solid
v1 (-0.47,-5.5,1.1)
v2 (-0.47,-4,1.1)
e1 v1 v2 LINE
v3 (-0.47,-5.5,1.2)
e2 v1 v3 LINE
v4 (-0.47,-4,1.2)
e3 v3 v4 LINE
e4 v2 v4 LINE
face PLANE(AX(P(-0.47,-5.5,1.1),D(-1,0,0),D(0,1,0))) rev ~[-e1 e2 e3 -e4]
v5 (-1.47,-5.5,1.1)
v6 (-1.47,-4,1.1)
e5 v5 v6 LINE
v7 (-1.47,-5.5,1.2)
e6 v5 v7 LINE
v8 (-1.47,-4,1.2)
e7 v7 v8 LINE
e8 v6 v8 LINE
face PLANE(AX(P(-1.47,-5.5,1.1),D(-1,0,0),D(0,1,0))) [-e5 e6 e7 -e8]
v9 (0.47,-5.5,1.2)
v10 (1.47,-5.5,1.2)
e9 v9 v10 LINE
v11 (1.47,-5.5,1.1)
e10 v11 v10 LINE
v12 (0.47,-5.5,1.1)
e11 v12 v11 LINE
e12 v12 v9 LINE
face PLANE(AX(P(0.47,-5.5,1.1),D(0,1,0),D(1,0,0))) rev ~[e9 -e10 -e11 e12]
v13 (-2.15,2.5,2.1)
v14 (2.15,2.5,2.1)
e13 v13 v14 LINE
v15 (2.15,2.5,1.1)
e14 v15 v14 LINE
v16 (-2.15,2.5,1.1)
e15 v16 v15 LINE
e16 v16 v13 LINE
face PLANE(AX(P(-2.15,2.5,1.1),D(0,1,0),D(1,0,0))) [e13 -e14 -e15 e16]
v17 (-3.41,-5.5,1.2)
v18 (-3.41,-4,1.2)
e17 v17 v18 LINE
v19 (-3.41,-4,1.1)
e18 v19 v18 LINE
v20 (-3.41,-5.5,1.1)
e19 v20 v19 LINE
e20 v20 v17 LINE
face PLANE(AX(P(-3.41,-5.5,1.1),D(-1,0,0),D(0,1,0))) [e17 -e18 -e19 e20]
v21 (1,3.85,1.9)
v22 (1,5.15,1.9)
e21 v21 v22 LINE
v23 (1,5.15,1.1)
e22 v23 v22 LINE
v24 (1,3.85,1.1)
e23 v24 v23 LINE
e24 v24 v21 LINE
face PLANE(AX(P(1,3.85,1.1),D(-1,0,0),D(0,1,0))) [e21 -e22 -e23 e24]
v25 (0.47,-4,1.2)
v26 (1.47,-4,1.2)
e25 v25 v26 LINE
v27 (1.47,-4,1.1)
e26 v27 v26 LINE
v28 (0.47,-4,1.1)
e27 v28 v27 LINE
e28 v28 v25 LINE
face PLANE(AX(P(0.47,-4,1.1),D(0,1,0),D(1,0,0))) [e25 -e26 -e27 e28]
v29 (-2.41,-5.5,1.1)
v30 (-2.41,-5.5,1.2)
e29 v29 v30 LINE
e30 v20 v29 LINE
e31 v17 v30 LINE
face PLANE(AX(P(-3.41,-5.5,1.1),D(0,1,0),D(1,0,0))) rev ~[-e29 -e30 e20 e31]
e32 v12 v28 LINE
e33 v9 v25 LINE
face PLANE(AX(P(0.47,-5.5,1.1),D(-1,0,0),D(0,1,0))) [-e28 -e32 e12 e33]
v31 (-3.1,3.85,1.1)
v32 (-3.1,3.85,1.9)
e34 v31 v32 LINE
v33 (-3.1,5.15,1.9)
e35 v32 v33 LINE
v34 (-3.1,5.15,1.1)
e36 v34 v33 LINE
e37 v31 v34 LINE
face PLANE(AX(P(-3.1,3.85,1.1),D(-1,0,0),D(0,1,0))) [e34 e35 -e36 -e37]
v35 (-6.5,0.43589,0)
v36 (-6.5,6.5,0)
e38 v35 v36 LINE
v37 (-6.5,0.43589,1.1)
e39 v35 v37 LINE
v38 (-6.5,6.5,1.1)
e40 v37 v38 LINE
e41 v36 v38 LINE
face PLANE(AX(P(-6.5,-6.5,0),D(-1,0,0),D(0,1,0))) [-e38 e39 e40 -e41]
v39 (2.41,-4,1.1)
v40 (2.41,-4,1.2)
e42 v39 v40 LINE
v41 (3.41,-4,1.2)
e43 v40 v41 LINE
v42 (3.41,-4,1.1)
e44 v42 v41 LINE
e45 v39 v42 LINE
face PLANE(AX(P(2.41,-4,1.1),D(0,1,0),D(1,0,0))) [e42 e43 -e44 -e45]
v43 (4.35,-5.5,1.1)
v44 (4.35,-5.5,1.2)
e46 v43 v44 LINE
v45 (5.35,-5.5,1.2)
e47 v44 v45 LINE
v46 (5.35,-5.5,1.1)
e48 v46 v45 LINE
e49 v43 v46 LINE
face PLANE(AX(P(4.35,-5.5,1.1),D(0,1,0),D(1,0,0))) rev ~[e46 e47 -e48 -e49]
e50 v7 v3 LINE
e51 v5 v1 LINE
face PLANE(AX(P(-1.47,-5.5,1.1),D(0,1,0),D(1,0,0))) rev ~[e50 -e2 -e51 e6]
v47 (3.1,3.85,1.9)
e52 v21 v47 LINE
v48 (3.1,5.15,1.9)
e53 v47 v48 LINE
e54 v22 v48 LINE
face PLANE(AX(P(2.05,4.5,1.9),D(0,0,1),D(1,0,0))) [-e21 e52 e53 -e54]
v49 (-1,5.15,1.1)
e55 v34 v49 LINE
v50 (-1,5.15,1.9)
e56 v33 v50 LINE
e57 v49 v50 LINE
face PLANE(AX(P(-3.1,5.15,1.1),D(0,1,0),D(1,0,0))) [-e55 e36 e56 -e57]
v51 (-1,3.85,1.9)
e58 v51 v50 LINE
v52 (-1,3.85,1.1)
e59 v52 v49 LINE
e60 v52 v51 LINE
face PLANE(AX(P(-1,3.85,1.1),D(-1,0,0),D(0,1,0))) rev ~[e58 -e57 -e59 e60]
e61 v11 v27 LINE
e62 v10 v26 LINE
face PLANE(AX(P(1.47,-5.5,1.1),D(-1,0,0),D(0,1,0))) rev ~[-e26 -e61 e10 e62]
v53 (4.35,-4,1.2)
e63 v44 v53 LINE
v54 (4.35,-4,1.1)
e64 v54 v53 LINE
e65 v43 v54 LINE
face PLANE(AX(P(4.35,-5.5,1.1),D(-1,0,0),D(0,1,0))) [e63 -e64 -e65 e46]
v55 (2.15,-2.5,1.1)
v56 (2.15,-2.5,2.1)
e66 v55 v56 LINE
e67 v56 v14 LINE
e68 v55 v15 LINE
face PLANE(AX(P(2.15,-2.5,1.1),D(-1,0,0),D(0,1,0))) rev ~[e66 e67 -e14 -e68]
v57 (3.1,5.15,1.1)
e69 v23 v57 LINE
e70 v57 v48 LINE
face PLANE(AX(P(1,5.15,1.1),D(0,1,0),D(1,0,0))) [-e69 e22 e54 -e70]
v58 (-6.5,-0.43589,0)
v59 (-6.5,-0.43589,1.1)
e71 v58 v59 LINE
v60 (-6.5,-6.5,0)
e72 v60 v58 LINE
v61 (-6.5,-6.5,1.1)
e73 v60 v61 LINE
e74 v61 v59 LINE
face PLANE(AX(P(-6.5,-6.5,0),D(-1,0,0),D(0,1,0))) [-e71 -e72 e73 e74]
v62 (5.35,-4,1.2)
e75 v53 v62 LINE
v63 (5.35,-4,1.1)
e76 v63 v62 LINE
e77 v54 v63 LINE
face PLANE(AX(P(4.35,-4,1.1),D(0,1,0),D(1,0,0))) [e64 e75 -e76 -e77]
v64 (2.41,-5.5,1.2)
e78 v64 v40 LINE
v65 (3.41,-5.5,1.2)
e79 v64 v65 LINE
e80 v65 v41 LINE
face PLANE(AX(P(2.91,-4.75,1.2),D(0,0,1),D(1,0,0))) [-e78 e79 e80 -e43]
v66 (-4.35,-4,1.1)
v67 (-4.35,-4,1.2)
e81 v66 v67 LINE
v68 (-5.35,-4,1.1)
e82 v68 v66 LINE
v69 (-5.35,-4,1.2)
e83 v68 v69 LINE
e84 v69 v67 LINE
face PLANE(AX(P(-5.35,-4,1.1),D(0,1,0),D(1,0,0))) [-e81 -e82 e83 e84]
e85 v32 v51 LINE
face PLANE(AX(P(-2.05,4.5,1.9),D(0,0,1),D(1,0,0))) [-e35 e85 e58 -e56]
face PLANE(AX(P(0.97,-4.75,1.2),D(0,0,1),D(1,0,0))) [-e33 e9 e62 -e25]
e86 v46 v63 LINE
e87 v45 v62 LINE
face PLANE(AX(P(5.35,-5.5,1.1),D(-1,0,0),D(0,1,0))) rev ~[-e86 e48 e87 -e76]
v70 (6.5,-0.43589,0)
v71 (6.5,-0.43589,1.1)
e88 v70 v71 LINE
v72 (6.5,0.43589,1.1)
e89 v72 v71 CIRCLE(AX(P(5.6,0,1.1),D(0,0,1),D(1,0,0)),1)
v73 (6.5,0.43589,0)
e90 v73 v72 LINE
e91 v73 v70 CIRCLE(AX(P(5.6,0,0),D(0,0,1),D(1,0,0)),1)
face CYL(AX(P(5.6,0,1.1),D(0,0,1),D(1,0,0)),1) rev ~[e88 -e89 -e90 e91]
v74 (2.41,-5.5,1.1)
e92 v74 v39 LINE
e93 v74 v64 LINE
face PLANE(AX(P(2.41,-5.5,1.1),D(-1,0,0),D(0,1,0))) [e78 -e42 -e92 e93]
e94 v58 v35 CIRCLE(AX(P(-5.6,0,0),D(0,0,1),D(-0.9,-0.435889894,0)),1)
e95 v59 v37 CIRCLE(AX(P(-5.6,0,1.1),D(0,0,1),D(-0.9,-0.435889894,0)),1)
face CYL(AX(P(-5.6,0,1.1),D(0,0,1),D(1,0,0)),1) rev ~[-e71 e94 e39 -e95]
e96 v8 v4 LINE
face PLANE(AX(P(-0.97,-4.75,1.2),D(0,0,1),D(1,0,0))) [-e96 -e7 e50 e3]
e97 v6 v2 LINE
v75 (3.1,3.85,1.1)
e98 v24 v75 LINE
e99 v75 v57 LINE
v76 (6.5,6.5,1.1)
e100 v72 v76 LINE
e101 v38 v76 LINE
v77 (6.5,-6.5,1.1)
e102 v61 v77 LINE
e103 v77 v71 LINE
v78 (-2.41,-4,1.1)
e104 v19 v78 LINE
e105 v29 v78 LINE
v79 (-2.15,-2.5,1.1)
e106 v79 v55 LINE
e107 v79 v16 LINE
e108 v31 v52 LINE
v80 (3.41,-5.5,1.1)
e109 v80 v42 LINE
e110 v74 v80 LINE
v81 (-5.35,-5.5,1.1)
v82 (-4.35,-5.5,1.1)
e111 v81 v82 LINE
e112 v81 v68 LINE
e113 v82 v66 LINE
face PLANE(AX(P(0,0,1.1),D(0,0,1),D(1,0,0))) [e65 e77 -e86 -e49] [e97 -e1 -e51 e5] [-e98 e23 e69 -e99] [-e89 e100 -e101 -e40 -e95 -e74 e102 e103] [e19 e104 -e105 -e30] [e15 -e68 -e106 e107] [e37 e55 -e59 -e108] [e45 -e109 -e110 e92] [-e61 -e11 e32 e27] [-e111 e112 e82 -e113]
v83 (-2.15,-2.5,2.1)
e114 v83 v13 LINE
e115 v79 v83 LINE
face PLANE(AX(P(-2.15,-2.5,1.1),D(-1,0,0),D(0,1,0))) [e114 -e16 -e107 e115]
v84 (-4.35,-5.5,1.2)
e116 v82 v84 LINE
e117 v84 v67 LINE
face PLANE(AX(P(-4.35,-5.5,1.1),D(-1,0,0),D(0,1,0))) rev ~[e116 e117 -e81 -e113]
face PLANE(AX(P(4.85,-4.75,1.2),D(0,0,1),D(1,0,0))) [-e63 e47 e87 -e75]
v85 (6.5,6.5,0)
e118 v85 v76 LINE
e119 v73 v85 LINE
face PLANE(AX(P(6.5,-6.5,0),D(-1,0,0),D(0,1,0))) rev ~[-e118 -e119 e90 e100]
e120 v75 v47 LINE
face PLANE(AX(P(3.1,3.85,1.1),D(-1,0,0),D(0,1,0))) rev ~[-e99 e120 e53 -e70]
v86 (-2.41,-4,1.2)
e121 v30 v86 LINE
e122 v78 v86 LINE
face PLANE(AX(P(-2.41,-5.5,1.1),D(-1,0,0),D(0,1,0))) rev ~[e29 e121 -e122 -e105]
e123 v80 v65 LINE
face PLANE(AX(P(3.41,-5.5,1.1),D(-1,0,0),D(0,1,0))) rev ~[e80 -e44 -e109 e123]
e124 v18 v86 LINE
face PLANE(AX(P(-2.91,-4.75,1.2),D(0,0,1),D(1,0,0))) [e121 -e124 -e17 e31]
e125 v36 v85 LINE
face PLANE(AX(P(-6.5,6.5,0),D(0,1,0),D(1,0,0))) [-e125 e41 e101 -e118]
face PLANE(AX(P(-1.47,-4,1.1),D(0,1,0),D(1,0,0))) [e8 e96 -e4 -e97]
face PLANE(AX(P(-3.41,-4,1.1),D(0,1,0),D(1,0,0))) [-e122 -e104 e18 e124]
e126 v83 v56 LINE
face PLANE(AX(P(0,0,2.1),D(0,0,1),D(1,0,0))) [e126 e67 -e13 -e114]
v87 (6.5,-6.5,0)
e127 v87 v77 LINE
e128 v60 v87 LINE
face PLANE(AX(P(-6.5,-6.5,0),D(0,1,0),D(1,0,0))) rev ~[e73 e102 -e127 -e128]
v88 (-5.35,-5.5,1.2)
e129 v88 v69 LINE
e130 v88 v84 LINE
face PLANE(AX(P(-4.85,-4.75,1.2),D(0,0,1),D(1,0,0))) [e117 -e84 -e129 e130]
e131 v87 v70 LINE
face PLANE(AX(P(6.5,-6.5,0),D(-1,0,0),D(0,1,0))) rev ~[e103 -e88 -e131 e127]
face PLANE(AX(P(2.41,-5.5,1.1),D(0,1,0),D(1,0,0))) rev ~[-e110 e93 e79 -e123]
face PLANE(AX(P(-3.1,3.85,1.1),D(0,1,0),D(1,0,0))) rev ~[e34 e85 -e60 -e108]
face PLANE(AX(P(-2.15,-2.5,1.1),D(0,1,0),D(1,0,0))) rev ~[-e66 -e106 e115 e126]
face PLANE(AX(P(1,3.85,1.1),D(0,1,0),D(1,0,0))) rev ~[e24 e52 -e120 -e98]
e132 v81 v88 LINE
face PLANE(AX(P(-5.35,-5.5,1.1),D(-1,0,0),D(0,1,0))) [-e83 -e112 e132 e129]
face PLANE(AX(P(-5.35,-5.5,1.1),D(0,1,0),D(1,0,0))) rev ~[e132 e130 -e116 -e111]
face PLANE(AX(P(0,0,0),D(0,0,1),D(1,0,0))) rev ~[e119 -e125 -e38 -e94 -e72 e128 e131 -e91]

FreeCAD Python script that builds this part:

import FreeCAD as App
import Part
import Sketcher
Q = App.Units.Quantity

doc = App.newDocument("Part")
body = doc.addObject("PartDesign::Body", "Body")

sketch1 = body.newObject("Sketcher::SketchObject", "Sketch")
sketch1.AttachmentSupport = (doc.getObject("XY_Plane"), [""])
sketch1.MapMode = "FlatFace"
sketch1.addGeometry([
    Part.LineSegment(App.Vector(-6.5, 6.5, 0), App.Vector(-6.5, -6.5, 0)),
    Part.LineSegment(App.Vector(-6.5, -6.5, 0), App.Vector(6.5, -6.5, 0)),
    Part.LineSegment(App.Vector(6.5, -6.5, 0), App.Vector(6.5, 6.5, 0)),
    Part.LineSegment(App.Vector(6.5, 6.5, 0), App.Vector(-6.5, 6.5, 0)),
], False)
sketch1.addConstraint([
    Sketcher.Constraint("Coincident", 0, 2, 1, 1),
    Sketcher.Constraint("Coincident", 1, 2, 2, 1),
    Sketcher.Constraint("Coincident", 2, 2, 3, 1),
    Sketcher.Constraint("Coincident", 3, 2, 0, 1),
    Sketcher.Constraint("Vertical", 0),
    Sketcher.Constraint("Horizontal", 1),
    Sketcher.Constraint("Vertical", 2),
    Sketcher.Constraint("Horizontal", 3),
    Sketcher.Constraint("Symmetric", 0, 2, 2, 2, -1, 1),
    Sketcher.Constraint("Equal", 3, 0),
    Sketcher.Constraint("DistanceX", 1, 1, 1, 2, Q("13 mm")),
])
pad1 = body.newObject("PartDesign::Pad", "Pad")
pad1.Profile = sketch1
pad1.Length = 1.1

sketch2 = body.newObject("Sketcher::SketchObject", "Sketch001")
sketch2.AttachmentSupport = (doc.getObject("XY_Plane"), [""])
sketch2.MapMode = "FlatFace"
sketch2.AttachmentOffset = App.Placement(App.Vector(0, 0, 1.1), App.Rotation())
sketch2.addGeometry([
    Part.LineSegment(App.Vector(-2.15, 2.5, 0), App.Vector(-2.15, -2.5, 0)),
    Part.LineSegment(App.Vector(-2.15, -2.5, 0), App.Vector(2.15, -2.5, 0)),
    Part.LineSegment(App.Vector(2.15, -2.5, 0), App.Vector(2.15, 2.5, 0)),
    Part.LineSegment(App.Vector(2.15, 2.5, 0), App.Vector(-2.15, 2.5, 0)),
], False)
sketch2.addConstraint([
    Sketcher.Constraint("Coincident", 0, 2, 1, 1),
    Sketcher.Constraint("Coincident", 1, 2, 2, 1),
    Sketcher.Constraint("Coincident", 2, 2, 3, 1),
    Sketcher.Constraint("Coincident", 3, 2, 0, 1),
    Sketcher.Constraint("Vertical", 0),
    Sketcher.Constraint("Horizontal", 1),
    Sketcher.Constraint("Vertical", 2),
    Sketcher.Constraint("Horizontal", 3),
    Sketcher.Constraint("Symmetric", 0, 2, 2, 2, -1, 1),
    Sketcher.Constraint("DistanceY", 0, 2, 0, 1, Q("5 mm")),
    Sketcher.Constraint("DistanceX", 1, 1, 1, 2, Q("4.3 mm")),
])
pad2 = body.newObject("PartDesign::Pad", "Pad001")
pad2.Profile = sketch2
pad2.Length = 1

sketch3 = body.newObject("Sketcher::SketchObject", "Sketch002")
sketch3.AttachmentSupport = (doc.getObject("XY_Plane"), [""])
sketch3.MapMode = "FlatFace"
sketch3.AttachmentOffset = App.Placement(App.Vector(0, 0, 1.1), App.Rotation())
sketch3.addGeometry([
    Part.LineSegment(App.Vector(-3.1, 5.15, 0), App.Vector(-3.1, 3.85, 0)),
    Part.LineSegment(App.Vector(-3.1, 3.85, 0), App.Vector(-1, 3.85, 0)),
    Part.LineSegment(App.Vector(-1, 3.85, 0), App.Vector(-1, 5.15, 0)),
    Part.LineSegment(App.Vector(-1, 5.15, 0), App.Vector(-3.1, 5.15, 0)),
    Part.LineSegment(App.Vector(1, 5.15, 0), App.Vector(1, 3.85, 0)),
    Part.LineSegment(App.Vector(1, 3.85, 0), App.Vector(3.1, 3.85, 0)),
    Part.LineSegment(App.Vector(3.1, 3.85, 0), App.Vector(3.1, 5.15, 0)),
    Part.LineSegment(App.Vector(3.1, 5.15, 0), App.Vector(1, 5.15, 0)),
], False)
sketch3.addConstraint([
    Sketcher.Constraint("Coincident", 0, 2, 1, 1),
    Sketcher.Constraint("Coincident", 1, 2, 2, 1),
    Sketcher.Constraint("Coincident", 2, 2, 3, 1),
    Sketcher.Constraint("Coincident", 3, 2, 0, 1),
    Sketcher.Constraint("Coincident", 4, 2, 5, 1),
    Sketcher.Constraint("Coincident", 5, 2, 6, 1),
    Sketcher.Constraint("Coincident", 6, 2, 7, 1),
    Sketcher.Constraint("Coincident", 7, 2, 4, 1),
    Sketcher.Constraint("Vertical", 0),
    Sketcher.Constraint("Horizontal", 1),
    Sketcher.Constraint("Vertical", 2),
    Sketcher.Constraint("Horizontal", 3),
    Sketcher.Constraint("Vertical", 4),
    Sketcher.Constraint("Horizontal", 5),
    Sketcher.Constraint("Vertical", 6),
    Sketcher.Constraint("Horizontal", 7),
    Sketcher.Constraint("Symmetric", 1, 2, 4, 2, -2),
    Sketcher.Constraint("Symmetric", 3, 2, 6, 2, -2),
    Sketcher.Constraint("DistanceX", 1, 1, 1, 2, Q("2.1 mm")),
    Sketcher.Constraint("DistanceY", 0, 2, 0, 1, Q("1.3 mm")),
    Sketcher.Constraint("DistanceX", 1, 2, -1, 1, Q("1 mm")),
    Sketcher.Constraint("DistanceY", -1, 1, 0, 2, Q("3.85 mm")),
])
pad3 = body.newObject("PartDesign::Pad", "Pad002")
pad3.Profile = sketch3
pad3.Length = 0.8

sketch4 = body.newObject("Sketcher::SketchObject", "Sketch003")
sketch4.AttachmentSupport = (doc.getObject("XY_Plane"), [""])
sketch4.MapMode = "FlatFace"
sketch4.AttachmentOffset = App.Placement(App.Vector(0, 0, 1.1), App.Rotation())
sketch4.addGeometry([
    Part.LineSegment(App.Vector(-3.41, -4, 0), App.Vector(-3.41, -5.5, 0)),
    Part.LineSegment(App.Vector(-3.41, -5.5, 0), App.Vector(-2.41, -5.5, 0)),
    Part.LineSegment(App.Vector(-2.41, -5.5, 0), App.Vector(-2.41, -4, 0)),
    Part.LineSegment(App.Vector(-2.41, -4, 0), App.Vector(-3.41, -4, 0)),
    Part.LineSegment(App.Vector(4.35, -4, 0), App.Vector(4.35, -5.5, 0)),
    Part.LineSegment(App.Vector(4.35, -5.5, 0), App.Vector(5.35, -5.5, 0)),
    Part.LineSegment(App.Vector(5.35, -5.5, 0), App.Vector(5.35, -4, 0)),
    Part.LineSegment(App.Vector(5.35, -4, 0), App.Vector(4.35, -4, 0)),
    Part.LineSegment(App.Vector(-5.35, -4, 0), App.Vector(-5.35, -5.5, 0)),
    Part.LineSegment(App.Vector(-5.35, -5.5, 0), App.Vector(-4.35, -5.5, 0)),
    Part.LineSegment(App.Vector(-4.35, -5.5, 0), App.Vector(-4.35, -4, 0)),
    Part.LineSegment(App.Vector(-4.35, -4, 0), App.Vector(-5.35, -4, 0)),
    Part.LineSegment(App.Vector(-1.47, -4, 0), App.Vector(-1.47, -5.5, 0)),
    Part.LineSegment(App.Vector(-1.47, -5.5, 0), App.Vector(-0.47, -5.5, 0)),
    Part.LineSegment(App.Vector(-0.47, -5.5, 0), App.Vector(-0.47, -4, 0)),
    Part.LineSegment(App.Vector(-0.47, -4, 0), App.Vector(-1.47, -4, 0)),
    Part.LineSegment(App.Vector(0.47, -4, 0), App.Vector(0.47, -5.5, 0)),
    Part.LineSegment(App.Vector(0.47, -5.5, 0), App.Vector(1.47, -5.5, 0)),
    Part.LineSegment(App.Vector(1.47, -5.5, 0), App.Vector(1.47, -4, 0)),
    Part.LineSegment(App.Vector(1.47, -4, 0), App.Vector(0.47, -4, 0)),
    Part.LineSegment(App.Vector(2.41, -4, 0), App.Vector(2.41, -5.5, 0)),
    Part.LineSegment(App.Vector(2.41, -5.5, 0), App.Vector(3.41, -5.5, 0)),
    Part.LineSegment(App.Vector(3.41, -5.5, 0), App.Vector(3.41, -4, 0)),
    Part.LineSegment(App.Vector(3.41, -4, 0), App.Vector(2.41, -4, 0)),
], False)
sketch4.addConstraint([
    Sketcher.Constraint("Coincident", 0, 2, 1, 1),
    Sketcher.Constraint("Coincident", 1, 2, 2, 1),
    Sketcher.Constraint("Coincident", 2, 2, 3, 1),
    Sketcher.Constraint("Coincident", 3, 2, 0, 1),
    Sketcher.Constraint("Coincident", 4, 2, 5, 1),
    Sketcher.Constraint("Coincident", 5, 2, 6, 1),
    Sketcher.Constraint("Coincident", 6, 2, 7, 1),
    Sketcher.Constraint("Coincident", 7, 2, 4, 1),
    Sketcher.Constraint("Coincident", 8, 2, 9, 1),
    Sketcher.Constraint("Coincident", 9, 2, 10, 1),
    Sketcher.Constraint("Coincident", 10, 2, 11, 1),
    Sketcher.Constraint("Coincident", 11, 2, 8, 1),
    Sketcher.Constraint("Coincident", 12, 2, 13, 1),
    Sketcher.Constraint("Coincident", 13, 2, 14, 1),
    Sketcher.Constraint("Coincident", 14, 2, 15, 1),
    Sketcher.Constraint("Coincident", 15, 2, 12, 1),
    Sketcher.Constraint("Coincident", 16, 2, 17, 1),
    Sketcher.Constraint("Coincident", 17, 2, 18, 1),
    Sketcher.Constraint("Coincident", 18, 2, 19, 1),
    Sketcher.Constraint("Coincident", 19, 2, 16, 1),
    Sketcher.Constraint("Coincident", 20, 2, 21, 1),
    Sketcher.Constraint("Coincident", 21, 2, 22, 1),
    Sketcher.Constraint("Coincident", 22, 2, 23, 1),
    Sketcher.Constraint("Coincident", 23, 2, 20, 1),
    Sketcher.Constraint("Vertical", 0),
    Sketcher.Constraint("Horizontal", 1),
    Sketcher.Constraint("Vertical", 2),
    Sketcher.Constraint("Horizontal", 3),
    Sketcher.Constraint("Vertical", 4),
    Sketcher.Constraint("Horizontal", 5),
    Sketcher.Constraint("Vertical", 6),
    Sketcher.Constraint("Horizontal", 7),
    Sketcher.Constraint("Vertical", 8),
    Sketcher.Constraint("Horizontal", 9),
    Sketcher.Constraint("Vertical", 10),
    Sketcher.Constraint("Horizontal", 11),
    Sketcher.Constraint("Vertical", 12),
    Sketcher.Constraint("Horizontal", 13),
    Sketcher.Constraint("Vertical", 14),
    Sketcher.Constraint("Horizontal", 15),
    Sketcher.Constraint("Vertical", 16),
    Sketcher.Constraint("Horizontal", 17),
    Sketcher.Constraint("Vertical", 18),
    Sketcher.Constraint("Horizontal", 19),
    Sketcher.Constraint("Vertical", 20),
    Sketcher.Constraint("Horizontal", 21),
    Sketcher.Constraint("Vertical", 22),
    Sketcher.Constraint("Horizontal", 23),
    Sketcher.Constraint("Symmetric", 5, 2, 8, 2, -2),
    Sketcher.Constraint("Symmetric", 7, 2, 10, 2, -2),
    Sketcher.Constraint("Symmetric", 13, 2, 16, 2, -2),
    Sketcher.Constraint("Symmetric", 15, 2, 18, 2, -2),
    Sketcher.Constraint("Symmetric", 1, 2, 20, 2, -2),
    Sketcher.Constraint("Symmetric", 3, 2, 22, 2, -2),
    Sketcher.Constraint("Horizontal", 1, 2, 4, 2),
    Sketcher.Constraint("Horizontal", 3, 2, 6, 2),
    Sketcher.Constraint("Horizontal", 9, 2, 12, 2),
    Sketcher.Constraint("Horizontal", 11, 2, 14, 2),
    Sketcher.Constraint("Equal", 3, 5),
    Sketcher.Constraint("Equal", 11, 13),
    Sketcher.Constraint("DistanceX", 1, 1, 1, 2, Q("1 mm")),
    Sketcher.Constraint("DistanceY", 0, 2, 0, 1, Q("1.5 mm")),
    Sketcher.Constraint("DistanceY", 2, 2, -1, 1, Q("4 mm")),
    Sketcher.Constraint("DistanceX", 8, 2, 4, 2, Q("9.7 mm")),
    Sketcher.Constraint("DistanceX", 0, 2, -1, 1, Q("3.41 mm")),
    Sketcher.Constraint("DistanceX", 12, 2, -1, 1, Q("1.47 mm")),
])
pad4 = body.newObject("PartDesign::Pad", "Pad003")
pad4.Profile = sketch4
pad4.Length = 0.1

sketch5 = body.newObject("Sketcher::SketchObject", "Sketch004")
sketch5.AttachmentSupport = (doc.getObject("XY_Plane"), [""])
sketch5.MapMode = "FlatFace"
sketch5.AttachmentOffset = App.Placement(App.Vector(0, 0, 1.1), App.Rotation())
sketch5.addGeometry([
    Part.Circle(App.Vector(5.6, 0, 0), App.Vector(0, 0, 1), 1),
    Part.Circle(App.Vector(-5.6, 0, 0), App.Vector(0, 0, 1), 1),
], False)
sketch5.addConstraint([
    Sketcher.Constraint("Equal", 0, 1),
    Sketcher.Constraint("Symmetric", 0, 3, 1, 3, -1, 1),
    Sketcher.Constraint("PointOnObject", 0, 3, -1),
    Sketcher.Constraint("Diameter", 0, Q("2 mm")),
    Sketcher.Constraint("DistanceX", -1, 1, 0, 3, Q("5.6 mm")),
])
pocket1 = body.newObject("PartDesign::Pocket", "Pocket")
pocket1.Profile = sketch5
pocket1.Length = 1.1

doc.recompute()
